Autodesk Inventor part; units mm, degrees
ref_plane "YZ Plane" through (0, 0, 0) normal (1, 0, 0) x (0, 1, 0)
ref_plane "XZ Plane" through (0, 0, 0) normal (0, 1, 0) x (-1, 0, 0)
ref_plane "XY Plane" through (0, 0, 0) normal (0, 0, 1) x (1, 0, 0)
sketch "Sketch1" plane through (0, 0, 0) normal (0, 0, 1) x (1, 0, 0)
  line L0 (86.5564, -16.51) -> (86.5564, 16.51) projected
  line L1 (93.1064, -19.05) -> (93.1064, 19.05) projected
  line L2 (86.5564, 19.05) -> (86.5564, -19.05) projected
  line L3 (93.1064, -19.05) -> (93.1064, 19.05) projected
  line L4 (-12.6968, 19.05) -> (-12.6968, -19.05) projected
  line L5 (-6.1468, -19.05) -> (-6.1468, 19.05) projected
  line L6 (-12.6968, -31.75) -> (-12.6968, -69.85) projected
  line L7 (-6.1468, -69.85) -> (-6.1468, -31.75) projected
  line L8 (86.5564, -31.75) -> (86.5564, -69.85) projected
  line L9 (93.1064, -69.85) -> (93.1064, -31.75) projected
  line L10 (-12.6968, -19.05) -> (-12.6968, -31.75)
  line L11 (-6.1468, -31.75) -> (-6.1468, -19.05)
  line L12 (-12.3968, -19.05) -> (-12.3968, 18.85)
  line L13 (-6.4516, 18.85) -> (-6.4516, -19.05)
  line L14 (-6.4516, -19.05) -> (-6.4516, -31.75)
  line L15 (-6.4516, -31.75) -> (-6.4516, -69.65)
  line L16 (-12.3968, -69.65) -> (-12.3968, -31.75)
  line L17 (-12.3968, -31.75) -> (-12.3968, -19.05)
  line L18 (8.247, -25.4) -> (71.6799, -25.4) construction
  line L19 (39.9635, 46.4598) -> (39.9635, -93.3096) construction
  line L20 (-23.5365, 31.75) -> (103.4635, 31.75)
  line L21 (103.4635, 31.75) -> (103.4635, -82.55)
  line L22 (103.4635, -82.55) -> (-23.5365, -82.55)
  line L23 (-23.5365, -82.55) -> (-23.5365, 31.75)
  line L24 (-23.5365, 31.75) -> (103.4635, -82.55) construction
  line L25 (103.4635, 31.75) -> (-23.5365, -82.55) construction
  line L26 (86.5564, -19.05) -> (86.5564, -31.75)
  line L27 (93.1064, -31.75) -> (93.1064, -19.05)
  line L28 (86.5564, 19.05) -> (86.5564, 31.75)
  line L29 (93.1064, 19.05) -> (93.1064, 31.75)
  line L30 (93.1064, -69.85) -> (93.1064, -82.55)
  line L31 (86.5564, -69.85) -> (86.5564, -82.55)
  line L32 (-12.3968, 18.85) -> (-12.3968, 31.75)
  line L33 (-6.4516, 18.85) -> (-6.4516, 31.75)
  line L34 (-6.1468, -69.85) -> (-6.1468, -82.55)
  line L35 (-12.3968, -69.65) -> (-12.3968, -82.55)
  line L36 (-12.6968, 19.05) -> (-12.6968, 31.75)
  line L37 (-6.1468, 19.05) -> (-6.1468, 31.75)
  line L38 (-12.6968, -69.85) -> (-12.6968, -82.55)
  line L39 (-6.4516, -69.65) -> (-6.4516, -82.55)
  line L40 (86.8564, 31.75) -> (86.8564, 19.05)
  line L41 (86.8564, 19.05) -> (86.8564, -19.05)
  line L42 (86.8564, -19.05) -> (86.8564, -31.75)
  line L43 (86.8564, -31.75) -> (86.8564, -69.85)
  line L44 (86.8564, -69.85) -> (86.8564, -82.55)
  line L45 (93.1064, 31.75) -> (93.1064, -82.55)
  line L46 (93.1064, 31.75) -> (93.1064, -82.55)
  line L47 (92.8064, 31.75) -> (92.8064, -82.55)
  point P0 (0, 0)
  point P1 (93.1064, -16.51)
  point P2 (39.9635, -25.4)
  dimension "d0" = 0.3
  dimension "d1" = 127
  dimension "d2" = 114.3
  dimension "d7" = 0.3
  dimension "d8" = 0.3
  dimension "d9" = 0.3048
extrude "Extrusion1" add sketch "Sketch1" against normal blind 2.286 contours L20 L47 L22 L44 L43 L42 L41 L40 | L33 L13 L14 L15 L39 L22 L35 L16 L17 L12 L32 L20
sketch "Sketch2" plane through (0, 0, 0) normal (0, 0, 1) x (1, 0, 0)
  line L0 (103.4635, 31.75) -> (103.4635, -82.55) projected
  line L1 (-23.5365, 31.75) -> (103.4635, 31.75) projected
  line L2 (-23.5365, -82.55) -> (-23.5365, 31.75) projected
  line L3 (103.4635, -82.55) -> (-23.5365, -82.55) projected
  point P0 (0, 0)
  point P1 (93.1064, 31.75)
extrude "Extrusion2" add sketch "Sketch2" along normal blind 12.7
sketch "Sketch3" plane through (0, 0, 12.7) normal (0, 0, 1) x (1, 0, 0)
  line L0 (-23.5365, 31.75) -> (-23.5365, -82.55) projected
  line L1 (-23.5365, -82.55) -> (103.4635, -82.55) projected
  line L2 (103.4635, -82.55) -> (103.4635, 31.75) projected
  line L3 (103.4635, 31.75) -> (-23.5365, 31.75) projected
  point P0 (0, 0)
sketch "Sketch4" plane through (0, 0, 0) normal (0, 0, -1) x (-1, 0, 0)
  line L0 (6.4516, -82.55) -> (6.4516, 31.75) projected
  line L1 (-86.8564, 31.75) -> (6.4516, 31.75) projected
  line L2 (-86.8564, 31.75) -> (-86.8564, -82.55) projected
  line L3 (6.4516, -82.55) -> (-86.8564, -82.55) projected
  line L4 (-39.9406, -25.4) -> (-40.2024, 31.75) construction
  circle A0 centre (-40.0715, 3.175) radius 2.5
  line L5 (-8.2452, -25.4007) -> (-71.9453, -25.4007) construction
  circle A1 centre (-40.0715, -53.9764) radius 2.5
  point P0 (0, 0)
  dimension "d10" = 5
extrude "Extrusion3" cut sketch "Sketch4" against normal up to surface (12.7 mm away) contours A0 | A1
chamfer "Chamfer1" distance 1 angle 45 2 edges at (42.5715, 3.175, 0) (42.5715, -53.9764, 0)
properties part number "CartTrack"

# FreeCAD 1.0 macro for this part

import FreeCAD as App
import Part
import Sketcher

V = App.Vector
Q = App.Units.Quantity


def edges_at(feature, points):
    """Names of the edges that pass closest to the given points."""
    edges = feature.Shape.Edges
    near = lambda p: min(range(len(edges)), key=lambda i: edges[i].distToShape(Part.Vertex(*p))[0])
    return sorted({f"Edge{near(p) + 1}" for p in points})


def add_polygon(sketch, points):
    """Adds a closed chain of lines whose ends are joined by coincident constraints."""
    first, n = sketch.GeometryCount, len(points)
    for a, b in zip(points, points[1:] + points[:1]):
        sketch.addGeometry(Part.LineSegment(App.Vector(*a, 0), App.Vector(*b, 0)), False)
    for i in range(n):
        sketch.addConstraint(Sketcher.Constraint("Coincident", first + i, 2, first + (i + 1) % n, 1))

doc = App.newDocument("Part")
body = doc.addObject("PartDesign::Body", "Body")
body.AllowCompound = True

# Sketch on XY plane
sketch1 = doc.addObject("Sketcher::SketchObject", "Sketch")
body.addObject(sketch1)
sketch1.AttachmentSupport = (doc.XY_Plane, [""])
sketch1.MapMode = "FlatFace"
add_polygon(sketch1, [(93, 32), (87, 32), (87, -83), (93, -83)])  # lines 0-3
add_polygon(sketch1, [(-6, -83), (-6, 32), (-12, 32), (-12, -83)])  # lines 4-7
sketch1.addConstraint([
    Sketcher.Constraint("Horizontal", 0),
    Sketcher.Constraint("Vertical", 1),
    Sketcher.Constraint("Horizontal", 2),
    Sketcher.Constraint("Vertical", 3),
    Sketcher.Constraint("Vertical", 4),
    Sketcher.Constraint("Horizontal", 5),
    Sketcher.Constraint("Vertical", 6),
    Sketcher.Constraint("Horizontal", 7),
    Sketcher.Constraint("Horizontal", 3, 2, 4, 2),
    Sketcher.Constraint("Horizontal", 2, 2, 6, 2),
    Sketcher.Constraint("DistanceY", 1, 2, 1, 1, Q("4.5 in")),
    Sketcher.Constraint("DistanceY", -1, 1, 0, 2, Q("1.25 in")),
    Sketcher.Constraint("DistanceX", 4, 2, -1, 1, Q("0.254 in")),
    Sketcher.Constraint("DistanceX", 0, 2, 0, 1, Q("5.95 mm")),
    Sketcher.Constraint("DistanceX", 5, 2, 5, 1, Q("5.9452 mm")),
    Sketcher.Constraint("DistanceX", -1, 1, 2, 2, Q("3.6538 in")),
])
pad1 = doc.addObject("PartDesign::Pad", "Pad")
body.addObject(pad1)
pad1.Profile = sketch1
pad1.Length = Q("0.09 in")
pad1.Reversed = True

# Sketch on XY plane
sketch2 = doc.addObject("Sketcher::SketchObject", "Sketch001")
body.addObject(sketch2)
sketch2.AttachmentSupport = (doc.XY_Plane, [""])
sketch2.MapMode = "FlatFace"
add_polygon(sketch2, [(103, -83), (103, 32), (-24, 32), (-24, -83)])  # lines 0-3
sketch2.addConstraint([
    Sketcher.Constraint("Vertical", 0),
    Sketcher.Constraint("Horizontal", 1),
    Sketcher.Constraint("Vertical", 2),
    Sketcher.Constraint("Horizontal", 3),
    Sketcher.Constraint("DistanceX", 1, 2, 1, 1, Q("5 in")),
    Sketcher.Constraint("DistanceY", 0, 1, 0, 2, Q("4.5 in")),
    Sketcher.Constraint("DistanceY", -1, 1, 0, 2, Q("1.25 in")),
    Sketcher.Constraint("DistanceX", -1, 1, 0, 2, Q("103.4635 mm")),
])
pad2 = doc.addObject("PartDesign::Pad", "Pad001")
body.addObject(pad2)
pad2.Profile = sketch2
pad2.Length = Q("0.5 in")

# Sketch on XY plane
sketch3 = doc.addObject("Sketcher::SketchObject", "Sketch002")
body.addObject(sketch3)
sketch3.AttachmentSupport = (doc.XY_Plane, [""])
sketch3.MapMode = "FlatFace"
sketch3.addGeometry([
    Part.Circle(V(40.1, 3.2, 0), V(0, 0, 1), 2.5),
    Part.Circle(V(40.1, -54, 0), V(0, 0, 1), 2.5),
], False)
sketch3.addConstraint([
    Sketcher.Constraint("Equal", 0, 1),
    Sketcher.Constraint("Vertical", 0, 3, 1, 3),
    Sketcher.Constraint("Diameter", 0, Q("5 mm")),
    Sketcher.Constraint("DistanceY", -1, 1, 0, 3, Q("0.125 in")),
    Sketcher.Constraint("DistanceX", -1, 1, 0, 3, Q("40.0715 mm")),
    Sketcher.Constraint("DistanceY", 1, 3, -1, 1, Q("53.9764 mm")),
])
pocket1 = doc.addObject("PartDesign::Pocket", "Pocket")
body.addObject(pocket1)
pocket1.Profile = sketch3
pocket1.Length = Q("0.5 in")
pocket1.Reversed = True
doc.recompute()

chamfer = doc.addObject("PartDesign::Chamfer", "Chamfer")
body.addObject(chamfer)
chamfer.Base = (pocket1, edges_at(pocket1, [(42.572, 3.175, 0), (42.572, -53.976, 0)]))
chamfer.Size = 1

doc.recompute()
